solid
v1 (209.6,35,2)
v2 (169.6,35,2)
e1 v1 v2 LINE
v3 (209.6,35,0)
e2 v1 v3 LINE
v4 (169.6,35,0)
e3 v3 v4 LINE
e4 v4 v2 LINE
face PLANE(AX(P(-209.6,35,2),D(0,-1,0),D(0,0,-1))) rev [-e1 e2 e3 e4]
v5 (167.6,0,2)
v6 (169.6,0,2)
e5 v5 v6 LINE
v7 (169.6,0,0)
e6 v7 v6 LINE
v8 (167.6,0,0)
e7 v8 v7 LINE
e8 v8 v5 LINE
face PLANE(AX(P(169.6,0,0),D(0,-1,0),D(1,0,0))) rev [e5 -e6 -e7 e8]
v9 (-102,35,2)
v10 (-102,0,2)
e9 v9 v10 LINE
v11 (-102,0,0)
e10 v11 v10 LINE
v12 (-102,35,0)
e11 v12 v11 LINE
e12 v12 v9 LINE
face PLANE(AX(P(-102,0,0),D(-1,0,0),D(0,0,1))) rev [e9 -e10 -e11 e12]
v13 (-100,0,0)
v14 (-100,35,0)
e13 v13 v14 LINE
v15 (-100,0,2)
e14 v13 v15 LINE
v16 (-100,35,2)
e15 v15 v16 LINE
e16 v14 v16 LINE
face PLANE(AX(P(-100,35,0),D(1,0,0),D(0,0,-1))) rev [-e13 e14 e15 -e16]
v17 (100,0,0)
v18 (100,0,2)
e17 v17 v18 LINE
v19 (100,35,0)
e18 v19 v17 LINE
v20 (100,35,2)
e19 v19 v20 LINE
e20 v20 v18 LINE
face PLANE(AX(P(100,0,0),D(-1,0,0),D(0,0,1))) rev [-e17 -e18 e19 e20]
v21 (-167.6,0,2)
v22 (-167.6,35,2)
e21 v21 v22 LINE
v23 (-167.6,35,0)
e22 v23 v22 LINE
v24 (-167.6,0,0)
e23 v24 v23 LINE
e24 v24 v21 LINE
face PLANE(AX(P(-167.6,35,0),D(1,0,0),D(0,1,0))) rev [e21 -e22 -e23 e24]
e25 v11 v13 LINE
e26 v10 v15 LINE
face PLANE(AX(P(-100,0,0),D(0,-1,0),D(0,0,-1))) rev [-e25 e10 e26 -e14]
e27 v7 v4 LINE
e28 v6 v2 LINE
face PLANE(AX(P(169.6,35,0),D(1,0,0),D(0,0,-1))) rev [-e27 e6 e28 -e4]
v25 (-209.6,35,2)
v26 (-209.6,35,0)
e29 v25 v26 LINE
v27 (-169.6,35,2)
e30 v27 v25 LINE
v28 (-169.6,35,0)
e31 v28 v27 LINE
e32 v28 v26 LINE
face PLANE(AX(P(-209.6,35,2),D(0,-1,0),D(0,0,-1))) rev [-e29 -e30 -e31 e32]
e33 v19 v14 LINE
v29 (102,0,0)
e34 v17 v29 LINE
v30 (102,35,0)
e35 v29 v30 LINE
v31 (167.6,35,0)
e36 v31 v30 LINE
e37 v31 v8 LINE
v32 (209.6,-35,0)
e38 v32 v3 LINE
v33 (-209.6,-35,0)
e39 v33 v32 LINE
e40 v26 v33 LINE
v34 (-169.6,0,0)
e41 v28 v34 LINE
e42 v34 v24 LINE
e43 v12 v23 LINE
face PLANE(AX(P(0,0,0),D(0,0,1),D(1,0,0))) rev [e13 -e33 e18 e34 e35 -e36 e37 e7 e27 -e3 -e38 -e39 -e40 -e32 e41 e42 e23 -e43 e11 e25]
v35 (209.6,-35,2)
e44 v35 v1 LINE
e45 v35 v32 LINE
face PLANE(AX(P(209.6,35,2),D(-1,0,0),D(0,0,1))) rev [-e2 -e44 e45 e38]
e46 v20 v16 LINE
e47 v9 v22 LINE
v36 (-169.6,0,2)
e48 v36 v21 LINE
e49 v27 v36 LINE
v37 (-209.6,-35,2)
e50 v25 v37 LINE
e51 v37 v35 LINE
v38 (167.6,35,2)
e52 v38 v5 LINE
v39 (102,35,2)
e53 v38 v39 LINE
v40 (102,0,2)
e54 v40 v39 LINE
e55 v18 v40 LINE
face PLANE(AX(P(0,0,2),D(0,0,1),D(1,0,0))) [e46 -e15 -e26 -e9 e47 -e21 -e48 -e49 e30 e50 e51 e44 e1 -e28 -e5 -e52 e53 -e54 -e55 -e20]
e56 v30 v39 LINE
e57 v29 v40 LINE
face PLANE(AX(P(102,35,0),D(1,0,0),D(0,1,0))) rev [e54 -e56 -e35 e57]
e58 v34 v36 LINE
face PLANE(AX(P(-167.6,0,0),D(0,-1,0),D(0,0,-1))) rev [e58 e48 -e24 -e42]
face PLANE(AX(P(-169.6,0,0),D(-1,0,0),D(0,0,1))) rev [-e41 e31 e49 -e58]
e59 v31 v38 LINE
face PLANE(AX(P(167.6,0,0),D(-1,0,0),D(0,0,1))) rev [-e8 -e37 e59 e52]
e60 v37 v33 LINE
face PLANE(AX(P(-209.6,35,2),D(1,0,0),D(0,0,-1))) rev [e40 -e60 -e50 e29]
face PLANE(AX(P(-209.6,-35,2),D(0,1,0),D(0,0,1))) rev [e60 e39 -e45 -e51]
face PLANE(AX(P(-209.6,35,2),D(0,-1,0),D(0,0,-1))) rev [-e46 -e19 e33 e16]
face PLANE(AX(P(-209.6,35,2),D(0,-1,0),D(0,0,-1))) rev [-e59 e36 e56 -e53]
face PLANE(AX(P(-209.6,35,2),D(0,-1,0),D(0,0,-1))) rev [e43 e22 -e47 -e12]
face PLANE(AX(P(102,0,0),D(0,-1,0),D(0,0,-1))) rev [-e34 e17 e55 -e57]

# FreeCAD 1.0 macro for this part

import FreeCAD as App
import Part
import Sketcher

V = App.Vector
Q = App.Units.Quantity


def add_polygon(sketch, points):
    """Adds a closed chain of lines whose ends are joined by coincident constraints."""
    first, n = sketch.GeometryCount, len(points)
    for a, b in zip(points, points[1:] + points[:1]):
        sketch.addGeometry(Part.LineSegment(App.Vector(*a, 0), App.Vector(*b, 0)), False)
    for i in range(n):
        sketch.addConstraint(Sketcher.Constraint("Coincident", first + i, 2, first + (i + 1) % n, 1))

doc = App.newDocument("Part")
params = doc.addObject("Spreadsheet::Sheet", "Params")
for row, (alias, value) in enumerate([
    ("sketch1_height", "70 mm"),
    ("sketch1_width", "419.2 mm"),
    ("pad1_length", "2 mm"),
    ("sketch2_width", "2 mm"),
    ("sketch2_height", "35 mm"),
    ("pocket1_length", "2 mm"),
], start=1):
    params.set(f"A{row}", alias)
    params.set(f"B{row}", "=" + value)
    params.setAlias(f"B{row}", alias)

body = doc.addObject("PartDesign::Body", "Body")

# Sketch on XY plane
sketch1 = body.newObject("Sketcher::SketchObject", "Sketch")
sketch1.AttachmentSupport = (doc.getObject("XY_Plane"), [""])
sketch1.MapMode = "FlatFace"
add_polygon(sketch1, [(-210, 35), (-210, -35), (210, -35), (210, 35)])  # lines 0-3
sketch1.addConstraint(Sketcher.Constraint("Vertical", 0))
sketch1.addConstraint(Sketcher.Constraint("Horizontal", 1))
sketch1.addConstraint(Sketcher.Constraint("Vertical", 2))
sketch1.addConstraint(Sketcher.Constraint("Horizontal", 3))
sketch1.addConstraint(Sketcher.Constraint("Symmetric", 0, 2, 2, 2, -1, 1))
sketch1.addConstraint(Sketcher.Constraint("DistanceY", 0, 2, 0, 1, Q("70 mm")))
sketch1.addConstraint(Sketcher.Constraint("DistanceX", 1, 1, 1, 2, Q("419.2 mm")))
sketch1.setExpression("Constraints[9]", "Params.sketch1_height")
sketch1.setExpression("Constraints[10]", "Params.sketch1_width")
pad1 = body.newObject("PartDesign::Pad", "Pad")
pad1.Profile = sketch1
pad1.setExpression("Length", "Params.pad1_length")

# Sketch on XY plane
sketch2 = body.newObject("Sketcher::SketchObject", "Sketch001")
sketch2.AttachmentSupport = (doc.getObject("XY_Plane"), [""])
sketch2.MapMode = "FlatFace"
sketch2.AttachmentOffset = App.Placement(V(0, 0, 2), App.Rotation())
add_polygon(sketch2, [(167.6, 35), (167.6, 0), (169.6, 0), (169.6, 35)])  # lines 0-3
add_polygon(sketch2, [(100, 35), (100, 0), (102, 0), (102, 35)])  # lines 4-7
add_polygon(sketch2, [(-102, 35), (-102, 0), (-100, 0), (-100, 35)])  # lines 8-11
add_polygon(sketch2, [(-169.6, 35), (-169.6, 0), (-167.6, 0), (-167.6, 35)])  # lines 12-15
sketch2.addConstraint(Sketcher.Constraint("Vertical", 0))
sketch2.addConstraint(Sketcher.Constraint("Horizontal", 1))
sketch2.addConstraint(Sketcher.Constraint("Vertical", 2))
sketch2.addConstraint(Sketcher.Constraint("Horizontal", 3))
sketch2.addConstraint(Sketcher.Constraint("Vertical", 4))
sketch2.addConstraint(Sketcher.Constraint("Horizontal", 5))
sketch2.addConstraint(Sketcher.Constraint("Vertical", 6))
sketch2.addConstraint(Sketcher.Constraint("Horizontal", 7))
sketch2.addConstraint(Sketcher.Constraint("Vertical", 8))
sketch2.addConstraint(Sketcher.Constraint("Horizontal", 9))
sketch2.addConstraint(Sketcher.Constraint("Vertical", 10))
sketch2.addConstraint(Sketcher.Constraint("Horizontal", 11))
sketch2.addConstraint(Sketcher.Constraint("Vertical", 12))
sketch2.addConstraint(Sketcher.Constraint("Horizontal", 13))
sketch2.addConstraint(Sketcher.Constraint("Vertical", 14))
sketch2.addConstraint(Sketcher.Constraint("Horizontal", 15))
sketch2.addConstraint(Sketcher.Constraint("Symmetric", 5, 2, 8, 2, -1, 1))
sketch2.addConstraint(Sketcher.Constraint("Symmetric", 1, 2, 12, 2, -1, 1))
sketch2.addConstraint(Sketcher.Constraint("Symmetric", 4, 2, 9, 2, -2))
sketch2.addConstraint(Sketcher.Constraint("Symmetric", 0, 2, 13, 2, -2))
sketch2.addConstraint(Sketcher.Constraint("Horizontal", 3, 2, 6, 2))
sketch2.addConstraint(Sketcher.Constraint("Horizontal", 7, 2, 10, 2))
sketch2.addConstraint(Sketcher.Constraint("Horizontal", 11, 2, 14, 2))
sketch2.addConstraint(Sketcher.Constraint("Equal", 3, 5))
sketch2.addConstraint(Sketcher.Constraint("DistanceX", 1, 1, 1, 2, Q("2 mm")))
sketch2.addConstraint(Sketcher.Constraint("DistanceY", 0, 2, 0, 1, Q("35 mm")))
sketch2.addConstraint(Sketcher.Constraint("DistanceX", -1, 1, 4, 2, Q("100 mm")))
sketch2.addConstraint(Sketcher.Constraint("DistanceX", -1, 1, 0, 2, Q("167.6 mm")))
sketch2.setExpression("Constraints[40]", "Params.sketch2_width")
sketch2.setExpression("Constraints[41]", "Params.sketch2_height")
pocket1 = body.newObject("PartDesign::Pocket", "Pocket")
pocket1.Profile = sketch2
pocket1.setExpression("Length", "Params.pocket1_length")

doc.recompute()
